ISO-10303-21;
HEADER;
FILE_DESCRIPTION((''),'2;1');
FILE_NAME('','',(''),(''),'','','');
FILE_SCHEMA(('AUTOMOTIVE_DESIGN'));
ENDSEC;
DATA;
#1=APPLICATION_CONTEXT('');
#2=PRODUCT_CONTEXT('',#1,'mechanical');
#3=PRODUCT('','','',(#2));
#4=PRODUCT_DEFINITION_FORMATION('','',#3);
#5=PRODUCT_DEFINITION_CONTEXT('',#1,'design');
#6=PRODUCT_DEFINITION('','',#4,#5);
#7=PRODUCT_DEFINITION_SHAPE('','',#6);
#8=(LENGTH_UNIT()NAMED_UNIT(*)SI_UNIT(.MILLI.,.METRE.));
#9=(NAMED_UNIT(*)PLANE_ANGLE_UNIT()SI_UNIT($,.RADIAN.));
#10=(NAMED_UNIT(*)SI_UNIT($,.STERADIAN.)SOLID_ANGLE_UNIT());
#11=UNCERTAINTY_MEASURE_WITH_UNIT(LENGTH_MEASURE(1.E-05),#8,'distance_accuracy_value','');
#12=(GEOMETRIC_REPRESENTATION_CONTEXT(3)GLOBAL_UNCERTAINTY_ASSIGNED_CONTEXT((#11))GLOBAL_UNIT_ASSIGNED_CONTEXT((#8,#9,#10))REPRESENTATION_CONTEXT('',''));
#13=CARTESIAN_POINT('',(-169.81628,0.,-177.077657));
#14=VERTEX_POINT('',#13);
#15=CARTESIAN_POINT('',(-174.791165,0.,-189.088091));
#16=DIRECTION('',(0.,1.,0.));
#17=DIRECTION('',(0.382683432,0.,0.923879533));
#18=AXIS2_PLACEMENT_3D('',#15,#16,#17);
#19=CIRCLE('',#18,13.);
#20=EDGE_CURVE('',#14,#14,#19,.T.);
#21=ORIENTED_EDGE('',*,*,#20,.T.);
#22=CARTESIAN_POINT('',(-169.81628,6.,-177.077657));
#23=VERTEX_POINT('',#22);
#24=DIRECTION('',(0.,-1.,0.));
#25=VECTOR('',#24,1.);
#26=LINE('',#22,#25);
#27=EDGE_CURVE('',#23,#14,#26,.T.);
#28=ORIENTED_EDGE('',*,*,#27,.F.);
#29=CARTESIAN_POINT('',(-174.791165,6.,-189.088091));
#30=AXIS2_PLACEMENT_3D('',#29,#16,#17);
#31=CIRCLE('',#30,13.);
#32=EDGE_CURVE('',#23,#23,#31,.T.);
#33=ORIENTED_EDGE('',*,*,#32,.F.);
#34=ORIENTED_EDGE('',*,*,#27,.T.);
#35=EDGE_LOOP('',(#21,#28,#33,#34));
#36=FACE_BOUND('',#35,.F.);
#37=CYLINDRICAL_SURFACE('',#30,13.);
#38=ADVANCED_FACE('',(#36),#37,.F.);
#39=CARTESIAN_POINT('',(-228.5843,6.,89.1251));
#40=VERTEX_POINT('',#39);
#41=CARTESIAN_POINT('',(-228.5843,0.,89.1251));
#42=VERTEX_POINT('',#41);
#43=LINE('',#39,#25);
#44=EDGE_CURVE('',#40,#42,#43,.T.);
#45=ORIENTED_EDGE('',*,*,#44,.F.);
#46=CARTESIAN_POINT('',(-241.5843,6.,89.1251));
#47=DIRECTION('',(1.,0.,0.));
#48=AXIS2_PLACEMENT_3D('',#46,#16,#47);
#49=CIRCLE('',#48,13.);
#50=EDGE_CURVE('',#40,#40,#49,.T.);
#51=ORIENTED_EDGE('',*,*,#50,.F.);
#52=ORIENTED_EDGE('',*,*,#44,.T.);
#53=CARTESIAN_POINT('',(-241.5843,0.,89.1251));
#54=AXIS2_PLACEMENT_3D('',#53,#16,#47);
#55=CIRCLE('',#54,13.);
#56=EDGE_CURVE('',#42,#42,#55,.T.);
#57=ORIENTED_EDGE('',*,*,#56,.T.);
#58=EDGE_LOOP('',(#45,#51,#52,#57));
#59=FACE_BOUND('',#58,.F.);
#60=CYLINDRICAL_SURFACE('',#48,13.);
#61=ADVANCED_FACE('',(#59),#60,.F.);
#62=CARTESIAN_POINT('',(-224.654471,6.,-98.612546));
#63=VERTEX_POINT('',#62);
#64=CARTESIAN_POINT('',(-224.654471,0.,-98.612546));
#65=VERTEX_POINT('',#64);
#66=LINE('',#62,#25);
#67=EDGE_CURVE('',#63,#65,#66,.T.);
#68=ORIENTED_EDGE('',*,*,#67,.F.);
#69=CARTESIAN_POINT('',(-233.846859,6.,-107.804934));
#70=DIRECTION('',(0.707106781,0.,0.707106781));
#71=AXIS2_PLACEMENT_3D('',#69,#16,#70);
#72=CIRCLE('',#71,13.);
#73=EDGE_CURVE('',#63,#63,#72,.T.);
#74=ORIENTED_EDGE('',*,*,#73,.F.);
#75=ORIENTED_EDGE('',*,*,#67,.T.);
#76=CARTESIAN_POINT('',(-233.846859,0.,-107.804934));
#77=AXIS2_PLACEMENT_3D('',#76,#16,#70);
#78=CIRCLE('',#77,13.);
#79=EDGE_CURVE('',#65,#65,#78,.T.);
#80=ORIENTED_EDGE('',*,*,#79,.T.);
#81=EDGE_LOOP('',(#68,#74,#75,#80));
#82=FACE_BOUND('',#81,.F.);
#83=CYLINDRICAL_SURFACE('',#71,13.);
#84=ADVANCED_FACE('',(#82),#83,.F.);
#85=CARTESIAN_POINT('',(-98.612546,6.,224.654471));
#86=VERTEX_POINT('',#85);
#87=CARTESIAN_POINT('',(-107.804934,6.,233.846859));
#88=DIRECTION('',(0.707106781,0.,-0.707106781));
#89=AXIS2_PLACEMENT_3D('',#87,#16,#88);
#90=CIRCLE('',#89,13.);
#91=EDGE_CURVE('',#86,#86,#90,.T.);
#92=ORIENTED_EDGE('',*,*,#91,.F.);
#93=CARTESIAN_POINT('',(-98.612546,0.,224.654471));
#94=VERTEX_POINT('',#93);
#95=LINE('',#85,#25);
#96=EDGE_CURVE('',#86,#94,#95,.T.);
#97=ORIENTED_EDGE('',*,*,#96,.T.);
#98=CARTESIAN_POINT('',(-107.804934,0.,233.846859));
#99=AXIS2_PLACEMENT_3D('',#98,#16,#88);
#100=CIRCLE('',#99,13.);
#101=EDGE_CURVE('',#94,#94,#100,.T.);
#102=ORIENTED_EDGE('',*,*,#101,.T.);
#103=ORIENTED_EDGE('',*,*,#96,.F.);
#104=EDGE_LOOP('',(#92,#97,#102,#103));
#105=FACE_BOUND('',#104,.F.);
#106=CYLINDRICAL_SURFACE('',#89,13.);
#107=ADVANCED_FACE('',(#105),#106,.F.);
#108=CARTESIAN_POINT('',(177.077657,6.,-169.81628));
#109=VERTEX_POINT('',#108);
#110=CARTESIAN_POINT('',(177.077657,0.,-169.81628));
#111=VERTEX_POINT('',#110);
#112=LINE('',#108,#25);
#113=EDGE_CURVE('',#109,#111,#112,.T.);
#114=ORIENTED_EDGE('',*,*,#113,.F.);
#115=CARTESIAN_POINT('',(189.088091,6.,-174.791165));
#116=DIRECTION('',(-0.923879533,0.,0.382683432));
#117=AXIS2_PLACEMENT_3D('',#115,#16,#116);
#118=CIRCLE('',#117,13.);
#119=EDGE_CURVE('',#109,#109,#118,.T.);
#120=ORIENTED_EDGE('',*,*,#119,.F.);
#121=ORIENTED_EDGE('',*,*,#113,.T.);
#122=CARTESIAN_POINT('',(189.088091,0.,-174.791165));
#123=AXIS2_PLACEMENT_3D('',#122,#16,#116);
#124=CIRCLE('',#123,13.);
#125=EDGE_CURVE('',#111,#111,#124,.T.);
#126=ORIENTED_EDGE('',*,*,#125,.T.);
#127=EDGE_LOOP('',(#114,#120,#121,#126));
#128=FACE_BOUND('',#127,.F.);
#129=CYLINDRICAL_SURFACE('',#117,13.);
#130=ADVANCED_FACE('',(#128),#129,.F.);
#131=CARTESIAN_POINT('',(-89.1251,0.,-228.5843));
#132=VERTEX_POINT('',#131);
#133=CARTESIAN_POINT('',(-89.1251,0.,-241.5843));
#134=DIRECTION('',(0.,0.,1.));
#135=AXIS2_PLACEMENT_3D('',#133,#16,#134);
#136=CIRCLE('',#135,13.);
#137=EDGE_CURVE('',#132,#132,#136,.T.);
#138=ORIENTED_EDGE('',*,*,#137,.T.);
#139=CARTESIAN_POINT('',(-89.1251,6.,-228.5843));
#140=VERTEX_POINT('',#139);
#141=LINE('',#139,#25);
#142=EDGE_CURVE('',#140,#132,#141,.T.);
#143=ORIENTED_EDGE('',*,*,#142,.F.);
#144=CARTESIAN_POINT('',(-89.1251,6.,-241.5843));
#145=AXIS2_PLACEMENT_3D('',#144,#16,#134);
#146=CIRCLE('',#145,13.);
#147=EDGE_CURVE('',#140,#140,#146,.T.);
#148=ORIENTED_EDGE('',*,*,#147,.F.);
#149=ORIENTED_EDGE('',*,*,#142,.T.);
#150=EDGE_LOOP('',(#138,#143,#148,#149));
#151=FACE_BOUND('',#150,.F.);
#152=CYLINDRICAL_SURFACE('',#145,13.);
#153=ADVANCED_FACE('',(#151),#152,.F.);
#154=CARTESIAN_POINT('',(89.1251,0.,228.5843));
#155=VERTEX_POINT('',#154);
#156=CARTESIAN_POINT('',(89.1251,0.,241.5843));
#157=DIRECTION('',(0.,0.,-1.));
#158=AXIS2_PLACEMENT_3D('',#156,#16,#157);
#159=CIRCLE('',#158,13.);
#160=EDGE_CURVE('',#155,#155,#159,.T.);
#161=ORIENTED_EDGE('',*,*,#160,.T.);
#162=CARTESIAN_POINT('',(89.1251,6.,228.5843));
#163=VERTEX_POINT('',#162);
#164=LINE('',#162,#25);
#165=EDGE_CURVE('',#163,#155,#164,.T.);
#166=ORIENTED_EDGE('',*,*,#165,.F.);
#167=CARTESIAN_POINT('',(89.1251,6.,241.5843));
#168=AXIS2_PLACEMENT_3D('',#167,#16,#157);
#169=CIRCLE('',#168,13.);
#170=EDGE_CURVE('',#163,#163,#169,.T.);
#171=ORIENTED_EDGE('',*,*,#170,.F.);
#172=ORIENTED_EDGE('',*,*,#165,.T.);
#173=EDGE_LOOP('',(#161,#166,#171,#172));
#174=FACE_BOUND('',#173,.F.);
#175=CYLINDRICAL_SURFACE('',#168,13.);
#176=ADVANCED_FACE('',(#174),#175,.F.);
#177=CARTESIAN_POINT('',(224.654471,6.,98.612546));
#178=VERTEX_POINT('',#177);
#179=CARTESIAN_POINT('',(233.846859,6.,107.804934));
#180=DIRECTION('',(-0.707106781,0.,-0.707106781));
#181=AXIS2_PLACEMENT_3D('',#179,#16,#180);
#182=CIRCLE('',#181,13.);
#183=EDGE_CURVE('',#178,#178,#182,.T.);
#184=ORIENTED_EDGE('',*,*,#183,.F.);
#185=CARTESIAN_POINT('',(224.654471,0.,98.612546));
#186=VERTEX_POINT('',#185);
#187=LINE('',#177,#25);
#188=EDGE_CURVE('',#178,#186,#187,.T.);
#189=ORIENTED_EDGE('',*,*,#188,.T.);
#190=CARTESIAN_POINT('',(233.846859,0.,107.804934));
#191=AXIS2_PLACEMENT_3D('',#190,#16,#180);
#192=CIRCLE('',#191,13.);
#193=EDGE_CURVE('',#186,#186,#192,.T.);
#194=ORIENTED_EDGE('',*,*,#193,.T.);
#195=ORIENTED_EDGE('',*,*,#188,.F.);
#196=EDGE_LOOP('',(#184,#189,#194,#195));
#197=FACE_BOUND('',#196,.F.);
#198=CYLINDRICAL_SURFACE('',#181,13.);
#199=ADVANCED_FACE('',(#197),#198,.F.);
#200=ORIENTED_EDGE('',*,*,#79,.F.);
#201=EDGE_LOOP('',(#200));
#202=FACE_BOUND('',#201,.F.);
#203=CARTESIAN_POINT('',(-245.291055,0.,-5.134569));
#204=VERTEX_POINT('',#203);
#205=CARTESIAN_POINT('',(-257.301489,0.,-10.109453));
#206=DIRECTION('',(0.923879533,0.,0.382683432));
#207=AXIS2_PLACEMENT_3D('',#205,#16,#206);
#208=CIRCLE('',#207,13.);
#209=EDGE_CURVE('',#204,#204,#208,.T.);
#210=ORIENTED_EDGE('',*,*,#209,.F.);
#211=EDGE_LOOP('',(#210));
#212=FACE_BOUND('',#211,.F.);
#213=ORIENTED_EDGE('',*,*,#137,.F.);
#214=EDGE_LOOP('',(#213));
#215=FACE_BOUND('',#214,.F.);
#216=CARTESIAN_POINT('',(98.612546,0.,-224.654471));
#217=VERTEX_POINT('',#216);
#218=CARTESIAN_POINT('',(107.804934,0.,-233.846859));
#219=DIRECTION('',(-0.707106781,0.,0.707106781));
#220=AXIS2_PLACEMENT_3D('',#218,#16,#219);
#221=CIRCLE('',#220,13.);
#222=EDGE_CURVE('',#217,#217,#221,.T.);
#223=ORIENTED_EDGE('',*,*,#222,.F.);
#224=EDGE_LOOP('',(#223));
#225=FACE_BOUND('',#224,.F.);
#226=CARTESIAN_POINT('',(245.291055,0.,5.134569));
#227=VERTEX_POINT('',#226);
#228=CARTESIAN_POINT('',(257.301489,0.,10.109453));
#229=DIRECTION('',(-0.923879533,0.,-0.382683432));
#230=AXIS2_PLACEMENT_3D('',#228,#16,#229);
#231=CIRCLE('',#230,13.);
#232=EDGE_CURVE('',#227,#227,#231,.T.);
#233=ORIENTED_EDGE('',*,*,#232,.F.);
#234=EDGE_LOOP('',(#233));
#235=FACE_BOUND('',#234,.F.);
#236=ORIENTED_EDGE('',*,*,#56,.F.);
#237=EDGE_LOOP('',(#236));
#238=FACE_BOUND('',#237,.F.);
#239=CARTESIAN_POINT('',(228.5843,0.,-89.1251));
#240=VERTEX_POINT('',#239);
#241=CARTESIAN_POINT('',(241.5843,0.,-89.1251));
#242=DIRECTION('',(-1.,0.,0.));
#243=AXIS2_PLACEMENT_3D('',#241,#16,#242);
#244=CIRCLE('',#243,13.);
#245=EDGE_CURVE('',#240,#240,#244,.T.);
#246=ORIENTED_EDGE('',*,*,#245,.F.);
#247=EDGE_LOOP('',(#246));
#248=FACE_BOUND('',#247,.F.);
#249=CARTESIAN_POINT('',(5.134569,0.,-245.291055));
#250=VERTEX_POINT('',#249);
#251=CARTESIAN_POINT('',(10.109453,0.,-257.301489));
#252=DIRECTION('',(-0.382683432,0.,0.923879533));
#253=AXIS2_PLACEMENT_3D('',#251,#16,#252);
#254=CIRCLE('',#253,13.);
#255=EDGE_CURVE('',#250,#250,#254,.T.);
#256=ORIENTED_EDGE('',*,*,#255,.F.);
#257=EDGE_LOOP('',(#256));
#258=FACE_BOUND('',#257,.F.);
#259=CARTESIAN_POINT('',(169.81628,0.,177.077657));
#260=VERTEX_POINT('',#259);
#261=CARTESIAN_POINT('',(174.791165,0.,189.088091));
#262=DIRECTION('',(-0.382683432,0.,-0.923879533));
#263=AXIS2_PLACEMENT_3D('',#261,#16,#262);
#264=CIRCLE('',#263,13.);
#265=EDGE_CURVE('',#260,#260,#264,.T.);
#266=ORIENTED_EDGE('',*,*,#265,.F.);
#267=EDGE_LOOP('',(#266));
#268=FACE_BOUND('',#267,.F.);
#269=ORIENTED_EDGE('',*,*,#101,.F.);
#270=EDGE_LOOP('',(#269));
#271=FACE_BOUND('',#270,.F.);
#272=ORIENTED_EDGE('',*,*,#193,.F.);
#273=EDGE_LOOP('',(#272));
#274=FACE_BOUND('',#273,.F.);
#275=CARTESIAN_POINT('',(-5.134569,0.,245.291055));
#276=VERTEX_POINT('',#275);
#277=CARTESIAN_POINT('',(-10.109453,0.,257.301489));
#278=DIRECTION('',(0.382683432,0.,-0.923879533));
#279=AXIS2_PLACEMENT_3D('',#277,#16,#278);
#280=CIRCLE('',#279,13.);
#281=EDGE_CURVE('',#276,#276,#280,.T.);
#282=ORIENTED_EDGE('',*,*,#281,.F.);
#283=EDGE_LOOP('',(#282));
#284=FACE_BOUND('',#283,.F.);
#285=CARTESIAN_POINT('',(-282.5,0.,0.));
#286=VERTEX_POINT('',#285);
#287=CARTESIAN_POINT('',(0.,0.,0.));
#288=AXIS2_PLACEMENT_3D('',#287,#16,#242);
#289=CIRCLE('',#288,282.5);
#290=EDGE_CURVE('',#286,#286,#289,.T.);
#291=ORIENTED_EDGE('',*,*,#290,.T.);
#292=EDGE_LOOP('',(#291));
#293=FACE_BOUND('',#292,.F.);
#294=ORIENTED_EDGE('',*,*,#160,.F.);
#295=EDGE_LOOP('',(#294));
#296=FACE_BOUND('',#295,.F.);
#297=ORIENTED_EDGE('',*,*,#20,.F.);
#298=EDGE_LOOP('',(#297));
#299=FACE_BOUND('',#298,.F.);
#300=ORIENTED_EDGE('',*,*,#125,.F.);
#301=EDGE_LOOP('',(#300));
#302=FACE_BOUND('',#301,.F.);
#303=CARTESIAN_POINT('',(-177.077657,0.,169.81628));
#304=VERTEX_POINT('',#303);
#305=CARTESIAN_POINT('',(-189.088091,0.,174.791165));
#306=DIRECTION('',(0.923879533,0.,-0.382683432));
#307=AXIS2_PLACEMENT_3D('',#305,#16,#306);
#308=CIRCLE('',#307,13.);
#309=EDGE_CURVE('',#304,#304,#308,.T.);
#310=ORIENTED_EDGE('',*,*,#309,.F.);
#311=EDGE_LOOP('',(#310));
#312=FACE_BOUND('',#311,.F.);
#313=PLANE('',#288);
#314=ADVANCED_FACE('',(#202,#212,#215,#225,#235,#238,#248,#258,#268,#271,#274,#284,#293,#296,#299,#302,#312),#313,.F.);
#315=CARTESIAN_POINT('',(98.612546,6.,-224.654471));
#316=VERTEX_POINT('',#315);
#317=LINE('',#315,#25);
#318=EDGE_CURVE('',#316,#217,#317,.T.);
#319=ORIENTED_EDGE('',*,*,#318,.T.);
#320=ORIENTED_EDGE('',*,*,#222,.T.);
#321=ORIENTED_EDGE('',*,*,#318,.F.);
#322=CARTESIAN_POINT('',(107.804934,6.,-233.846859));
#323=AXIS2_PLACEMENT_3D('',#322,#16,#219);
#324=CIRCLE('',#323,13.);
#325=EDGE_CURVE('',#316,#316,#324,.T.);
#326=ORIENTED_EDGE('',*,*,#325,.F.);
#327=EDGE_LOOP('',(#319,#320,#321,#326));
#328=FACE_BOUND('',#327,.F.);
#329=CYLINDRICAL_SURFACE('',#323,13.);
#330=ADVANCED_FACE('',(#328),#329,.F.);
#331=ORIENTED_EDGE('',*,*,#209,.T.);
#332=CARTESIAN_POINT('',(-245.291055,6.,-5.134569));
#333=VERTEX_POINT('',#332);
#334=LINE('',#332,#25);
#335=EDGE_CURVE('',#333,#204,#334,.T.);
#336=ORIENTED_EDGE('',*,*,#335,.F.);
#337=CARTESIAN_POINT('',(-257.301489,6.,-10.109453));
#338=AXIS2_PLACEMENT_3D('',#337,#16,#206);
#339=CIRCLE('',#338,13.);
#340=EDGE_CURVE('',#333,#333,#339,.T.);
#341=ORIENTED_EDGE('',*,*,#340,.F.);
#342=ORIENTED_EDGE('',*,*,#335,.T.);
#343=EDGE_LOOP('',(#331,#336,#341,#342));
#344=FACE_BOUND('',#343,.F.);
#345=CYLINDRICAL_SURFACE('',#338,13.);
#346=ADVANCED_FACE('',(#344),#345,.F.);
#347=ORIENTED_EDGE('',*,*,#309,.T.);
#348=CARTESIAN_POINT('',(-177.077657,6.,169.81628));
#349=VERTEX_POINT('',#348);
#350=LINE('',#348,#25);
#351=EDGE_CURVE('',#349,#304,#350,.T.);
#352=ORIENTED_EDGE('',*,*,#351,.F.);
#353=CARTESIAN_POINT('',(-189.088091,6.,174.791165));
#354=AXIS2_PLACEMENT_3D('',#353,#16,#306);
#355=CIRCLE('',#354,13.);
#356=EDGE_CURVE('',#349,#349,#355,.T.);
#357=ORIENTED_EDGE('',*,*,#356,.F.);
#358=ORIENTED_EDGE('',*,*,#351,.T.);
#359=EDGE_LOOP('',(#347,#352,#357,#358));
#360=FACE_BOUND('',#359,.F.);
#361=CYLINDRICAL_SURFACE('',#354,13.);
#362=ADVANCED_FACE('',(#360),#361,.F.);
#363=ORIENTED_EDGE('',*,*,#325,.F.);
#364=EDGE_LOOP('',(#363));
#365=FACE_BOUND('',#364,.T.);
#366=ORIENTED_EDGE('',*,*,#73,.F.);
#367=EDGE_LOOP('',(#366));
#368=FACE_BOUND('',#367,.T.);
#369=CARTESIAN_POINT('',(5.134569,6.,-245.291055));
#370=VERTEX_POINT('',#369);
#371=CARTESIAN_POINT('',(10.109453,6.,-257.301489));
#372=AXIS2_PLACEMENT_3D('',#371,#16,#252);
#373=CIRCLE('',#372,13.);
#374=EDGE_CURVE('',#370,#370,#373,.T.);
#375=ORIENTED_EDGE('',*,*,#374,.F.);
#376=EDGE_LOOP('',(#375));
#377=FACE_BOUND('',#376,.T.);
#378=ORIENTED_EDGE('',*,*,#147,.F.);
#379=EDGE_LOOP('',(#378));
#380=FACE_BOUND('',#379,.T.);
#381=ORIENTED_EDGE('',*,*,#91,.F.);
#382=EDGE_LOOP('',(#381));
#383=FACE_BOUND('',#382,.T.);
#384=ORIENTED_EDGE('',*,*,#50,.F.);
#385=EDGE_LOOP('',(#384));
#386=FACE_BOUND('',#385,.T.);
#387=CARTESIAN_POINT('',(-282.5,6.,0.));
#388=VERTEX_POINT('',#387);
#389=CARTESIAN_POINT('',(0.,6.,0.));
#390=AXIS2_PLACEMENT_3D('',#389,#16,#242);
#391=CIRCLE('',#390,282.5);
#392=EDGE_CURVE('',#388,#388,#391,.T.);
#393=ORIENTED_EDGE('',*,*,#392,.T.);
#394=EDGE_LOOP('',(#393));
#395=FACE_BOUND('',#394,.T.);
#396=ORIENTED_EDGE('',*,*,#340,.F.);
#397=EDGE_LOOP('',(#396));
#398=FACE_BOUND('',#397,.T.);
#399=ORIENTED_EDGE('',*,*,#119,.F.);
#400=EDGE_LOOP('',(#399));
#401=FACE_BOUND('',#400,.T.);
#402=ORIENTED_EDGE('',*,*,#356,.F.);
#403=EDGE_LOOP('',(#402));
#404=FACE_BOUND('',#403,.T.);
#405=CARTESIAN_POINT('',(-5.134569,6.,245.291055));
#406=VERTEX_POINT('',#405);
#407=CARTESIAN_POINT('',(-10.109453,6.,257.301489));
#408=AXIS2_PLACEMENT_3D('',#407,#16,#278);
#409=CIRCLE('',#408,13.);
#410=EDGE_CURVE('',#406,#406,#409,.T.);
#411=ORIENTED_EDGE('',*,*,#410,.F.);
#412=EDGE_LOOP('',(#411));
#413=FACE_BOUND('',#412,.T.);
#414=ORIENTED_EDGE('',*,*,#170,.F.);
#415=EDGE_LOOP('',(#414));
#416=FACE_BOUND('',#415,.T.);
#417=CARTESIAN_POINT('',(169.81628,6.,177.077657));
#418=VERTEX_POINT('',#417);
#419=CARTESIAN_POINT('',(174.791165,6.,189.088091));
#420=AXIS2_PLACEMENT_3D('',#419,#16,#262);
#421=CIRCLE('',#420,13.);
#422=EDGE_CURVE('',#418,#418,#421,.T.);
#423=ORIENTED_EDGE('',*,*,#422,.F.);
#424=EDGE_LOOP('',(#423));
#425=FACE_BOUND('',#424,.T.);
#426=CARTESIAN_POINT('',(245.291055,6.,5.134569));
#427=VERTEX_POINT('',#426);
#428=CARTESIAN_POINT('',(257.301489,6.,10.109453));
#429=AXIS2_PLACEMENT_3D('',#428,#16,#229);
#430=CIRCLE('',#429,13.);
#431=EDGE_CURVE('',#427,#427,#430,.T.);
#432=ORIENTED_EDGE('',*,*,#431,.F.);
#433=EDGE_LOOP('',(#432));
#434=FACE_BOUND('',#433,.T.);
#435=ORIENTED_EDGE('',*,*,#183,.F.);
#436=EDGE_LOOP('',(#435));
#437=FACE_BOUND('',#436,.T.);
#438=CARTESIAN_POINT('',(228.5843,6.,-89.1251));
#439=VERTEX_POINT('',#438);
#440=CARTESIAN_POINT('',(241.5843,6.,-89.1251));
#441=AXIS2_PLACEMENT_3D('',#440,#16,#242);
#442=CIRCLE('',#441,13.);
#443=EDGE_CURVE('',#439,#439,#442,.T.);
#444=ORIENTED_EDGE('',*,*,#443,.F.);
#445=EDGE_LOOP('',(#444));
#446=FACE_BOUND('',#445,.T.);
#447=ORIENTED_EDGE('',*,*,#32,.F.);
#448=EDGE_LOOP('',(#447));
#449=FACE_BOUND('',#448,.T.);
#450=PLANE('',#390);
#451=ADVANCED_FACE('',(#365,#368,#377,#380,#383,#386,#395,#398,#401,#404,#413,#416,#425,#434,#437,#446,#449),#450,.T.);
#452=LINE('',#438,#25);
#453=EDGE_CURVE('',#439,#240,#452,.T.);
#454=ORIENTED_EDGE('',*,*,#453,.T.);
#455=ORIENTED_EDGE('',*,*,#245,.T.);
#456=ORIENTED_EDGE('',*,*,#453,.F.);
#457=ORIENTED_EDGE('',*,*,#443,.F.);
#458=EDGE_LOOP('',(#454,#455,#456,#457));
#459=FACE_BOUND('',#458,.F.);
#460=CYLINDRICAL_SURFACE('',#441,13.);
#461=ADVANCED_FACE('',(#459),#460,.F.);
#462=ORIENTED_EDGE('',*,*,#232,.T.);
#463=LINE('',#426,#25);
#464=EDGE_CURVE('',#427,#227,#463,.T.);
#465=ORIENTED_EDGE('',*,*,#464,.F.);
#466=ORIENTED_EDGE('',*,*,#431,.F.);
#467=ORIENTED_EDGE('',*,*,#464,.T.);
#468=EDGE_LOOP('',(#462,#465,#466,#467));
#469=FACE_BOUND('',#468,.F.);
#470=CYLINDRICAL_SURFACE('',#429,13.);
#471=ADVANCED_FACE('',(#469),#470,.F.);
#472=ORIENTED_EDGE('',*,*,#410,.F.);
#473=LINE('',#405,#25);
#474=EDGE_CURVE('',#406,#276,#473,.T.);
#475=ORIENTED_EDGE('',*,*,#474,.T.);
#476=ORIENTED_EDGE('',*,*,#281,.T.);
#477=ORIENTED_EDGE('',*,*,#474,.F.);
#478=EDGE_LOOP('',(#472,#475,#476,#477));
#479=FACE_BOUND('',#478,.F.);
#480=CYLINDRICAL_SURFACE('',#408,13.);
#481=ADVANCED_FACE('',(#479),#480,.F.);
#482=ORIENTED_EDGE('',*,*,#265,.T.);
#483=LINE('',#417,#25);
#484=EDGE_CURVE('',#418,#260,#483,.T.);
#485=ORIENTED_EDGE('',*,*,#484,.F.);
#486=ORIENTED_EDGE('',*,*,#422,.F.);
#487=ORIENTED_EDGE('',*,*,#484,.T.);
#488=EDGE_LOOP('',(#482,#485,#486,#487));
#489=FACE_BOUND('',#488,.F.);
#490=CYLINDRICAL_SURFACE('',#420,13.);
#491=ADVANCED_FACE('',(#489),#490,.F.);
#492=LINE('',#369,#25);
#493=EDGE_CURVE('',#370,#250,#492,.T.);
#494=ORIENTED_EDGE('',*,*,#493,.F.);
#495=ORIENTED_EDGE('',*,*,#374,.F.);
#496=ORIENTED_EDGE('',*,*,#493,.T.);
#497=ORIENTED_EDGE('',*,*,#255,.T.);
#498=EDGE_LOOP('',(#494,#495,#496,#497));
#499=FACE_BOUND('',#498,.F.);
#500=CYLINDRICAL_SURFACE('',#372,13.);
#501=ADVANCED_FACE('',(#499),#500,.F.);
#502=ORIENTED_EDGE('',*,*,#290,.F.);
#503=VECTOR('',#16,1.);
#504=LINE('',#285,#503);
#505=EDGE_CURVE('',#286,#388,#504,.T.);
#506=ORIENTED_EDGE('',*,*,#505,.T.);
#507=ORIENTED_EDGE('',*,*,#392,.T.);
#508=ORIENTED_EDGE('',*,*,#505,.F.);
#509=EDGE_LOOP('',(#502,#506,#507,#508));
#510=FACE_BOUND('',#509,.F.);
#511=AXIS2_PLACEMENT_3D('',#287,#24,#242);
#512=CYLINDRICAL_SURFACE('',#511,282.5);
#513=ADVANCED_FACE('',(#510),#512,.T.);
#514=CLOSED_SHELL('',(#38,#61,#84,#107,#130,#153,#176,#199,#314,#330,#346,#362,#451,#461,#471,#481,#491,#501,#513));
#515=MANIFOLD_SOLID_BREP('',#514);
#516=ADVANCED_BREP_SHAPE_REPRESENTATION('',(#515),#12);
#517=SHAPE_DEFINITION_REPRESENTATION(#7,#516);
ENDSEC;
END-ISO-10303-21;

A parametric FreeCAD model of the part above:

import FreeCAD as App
import Part
import Sketcher
Q = App.Units.Quantity

doc = App.newDocument("Part")
body = doc.addObject("PartDesign::Body", "Body")

sketch1 = doc.addObject("Sketcher::SketchObject", "Sketch")
body.addObject(sketch1)
sketch1.AttachmentSupport = (doc.XZ_Plane, [""])
sketch1.MapMode = "FlatFace"
sketch1.addGeometry(Part.Circle(App.Vector(0, 0, 0), App.Vector(0, 0, 1), 282), False)
sketch1.addConstraint([
    Sketcher.Constraint("Coincident", 0, 3, -1, 1),
    Sketcher.Constraint("Diameter", 0, Q("565 mm")),
])
pad1 = doc.addObject("PartDesign::Pad", "Pad")
body.addObject(pad1)
pad1.Profile = sketch1
pad1.Length = 6
pad1.Reversed = True

sketch2 = doc.addObject("Sketcher::SketchObject", "Sketch001")
body.addObject(sketch2)
sketch2.AttachmentSupport = (doc.XZ_Plane, [""])
sketch2.MapMode = "FlatFace"
sketch2.AttachmentOffset = App.Placement(App.Vector(0, 0, -6), App.Rotation())
sketch2.addGeometry(Part.Circle(App.Vector(-242, 89, 0), App.Vector(0, 0, 1), 13), False)
sketch2.addConstraint([
    Sketcher.Constraint("Diameter", 0, Q("26 mm")),
    Sketcher.Constraint("DistanceY", -1, 1, 0, 3, Q("89.125 mm")),
    Sketcher.Constraint("DistanceX", 0, 3, -1, 1, Q("241.5843 mm")),
])
pocket1 = doc.addObject("PartDesign::Pocket", "Pocket")
body.addObject(pocket1)
pocket1.Profile = sketch2
pocket1.Type = "ThroughAll"
pocket1.Reversed = True
doc.recompute()

polarpattern = doc.addObject("PartDesign::PolarPattern", "PolarPattern")
body.addObject(polarpattern)
polarpattern.Originals = [pocket1]
polarpattern.Axis = (doc.Y_Axis, [""])
polarpattern.Angle = 360
polarpattern.Occurrences = 16
body.Tip = polarpattern

doc.recompute()
